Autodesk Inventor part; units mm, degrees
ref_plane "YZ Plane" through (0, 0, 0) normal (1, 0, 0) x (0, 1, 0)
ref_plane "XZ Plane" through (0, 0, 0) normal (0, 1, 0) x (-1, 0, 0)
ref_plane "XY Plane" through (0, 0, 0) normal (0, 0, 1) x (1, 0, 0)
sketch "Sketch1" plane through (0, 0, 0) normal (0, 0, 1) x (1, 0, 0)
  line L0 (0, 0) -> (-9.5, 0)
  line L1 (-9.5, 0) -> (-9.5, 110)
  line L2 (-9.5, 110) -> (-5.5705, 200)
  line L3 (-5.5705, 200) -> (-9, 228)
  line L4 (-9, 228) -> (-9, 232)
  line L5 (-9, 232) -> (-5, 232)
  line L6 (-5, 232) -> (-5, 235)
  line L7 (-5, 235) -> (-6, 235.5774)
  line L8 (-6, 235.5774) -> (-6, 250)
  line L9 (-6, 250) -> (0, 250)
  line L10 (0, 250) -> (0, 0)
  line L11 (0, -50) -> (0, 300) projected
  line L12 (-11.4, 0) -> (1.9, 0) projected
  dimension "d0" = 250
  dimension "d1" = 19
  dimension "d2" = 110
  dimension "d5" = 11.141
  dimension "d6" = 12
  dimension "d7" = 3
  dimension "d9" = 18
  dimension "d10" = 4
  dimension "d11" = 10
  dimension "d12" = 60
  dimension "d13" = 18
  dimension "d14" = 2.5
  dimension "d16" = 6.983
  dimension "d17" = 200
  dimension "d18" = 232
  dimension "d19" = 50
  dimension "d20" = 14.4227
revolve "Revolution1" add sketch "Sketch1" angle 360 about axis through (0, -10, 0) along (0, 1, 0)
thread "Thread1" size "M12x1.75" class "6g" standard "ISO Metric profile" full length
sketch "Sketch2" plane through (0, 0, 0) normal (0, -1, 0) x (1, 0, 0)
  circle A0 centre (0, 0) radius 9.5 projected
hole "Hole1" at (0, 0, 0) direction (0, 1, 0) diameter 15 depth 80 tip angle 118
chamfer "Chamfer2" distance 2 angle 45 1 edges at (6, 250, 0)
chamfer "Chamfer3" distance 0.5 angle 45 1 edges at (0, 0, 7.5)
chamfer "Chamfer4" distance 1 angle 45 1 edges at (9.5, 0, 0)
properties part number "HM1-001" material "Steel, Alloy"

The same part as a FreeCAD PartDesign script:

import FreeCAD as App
import Part
import Sketcher
Q = App.Units.Quantity


def edges_at(feature, points):
    """Names of the edges that pass closest to the given points."""
    edges = feature.Shape.Edges
    near = lambda p: min(range(len(edges)), key=lambda i: edges[i].distToShape(Part.Vertex(*p))[0])
    return sorted({f"Edge{near(p) + 1}" for p in points})

doc = App.newDocument("Part")
params = doc.addObject("Spreadsheet::Sheet", "Params")
for row, (alias, value) in enumerate([
    ("sketch1_width", "4 mm"),
    ("sketch1_height", "250 mm"),
    ("sketch1_height2", "3 mm"),
    ("sketch1_height3", "110 mm"),
    ("sketch1_width2", "6 mm"),
    ("revolution_angle", "360 deg"),
    ("sketch2_diameter", "15 mm"),
    ("hole_diameter", "15 mm"),
    ("hole_depth", "80 mm"),
    ("chamfer_size", "2 mm"),
    ("chamfer2_size", "0.5 mm"),
    ("chamfer3_size", "1 mm"),
], start=1):
    params.set(f"A{row}", alias)
    params.set(f"B{row}", "=" + value)
    params.setAlias(f"B{row}", alias)

body = doc.addObject("PartDesign::Body", "Body")

# Sketch on XY plane
sketch1 = doc.addObject("Sketcher::SketchObject", "Sketch")
body.addObject(sketch1)
sketch1.AttachmentSupport = (doc.XY_Plane, [""])
sketch1.MapMode = "FlatFace"
sketch1.addGeometry(Part.LineSegment(App.Vector(-9.5, 0, 0), App.Vector(0, 0, 0)), False)
sketch1.addGeometry(Part.LineSegment(App.Vector(0, 0, 0), App.Vector(0, 250, 0)), False)
sketch1.addGeometry(Part.LineSegment(App.Vector(0, 250, 0), App.Vector(-6, 250, 0)), False)
sketch1.addGeometry(Part.LineSegment(App.Vector(-6, 250, 0), App.Vector(-6, 235.5774, 0)), False)
sketch1.addGeometry(Part.LineSegment(App.Vector(-6, 235.5774, 0), App.Vector(-5, 235, 0)), False)
sketch1.addGeometry(Part.LineSegment(App.Vector(-5, 235, 0), App.Vector(-5, 232, 0)), False)
sketch1.addGeometry(Part.LineSegment(App.Vector(-5, 232, 0), App.Vector(-9, 232, 0)), False)
sketch1.addGeometry(Part.LineSegment(App.Vector(-9, 232, 0), App.Vector(-9, 228, 0)), False)
sketch1.addGeometry(Part.LineSegment(App.Vector(-9, 228, 0), App.Vector(-5.5705, 200, 0)), False)
sketch1.addGeometry(Part.LineSegment(App.Vector(-5.5705, 200, 0), App.Vector(-9.5, 110, 0)), False)
sketch1.addGeometry(Part.LineSegment(App.Vector(-9.5, 110, 0), App.Vector(-9.5, 0, 0)), False)
sketch1.addConstraint(Sketcher.Constraint("Coincident", 0, 2, 1, 1))
sketch1.addConstraint(Sketcher.Constraint("Coincident", 1, 2, 2, 1))
sketch1.addConstraint(Sketcher.Constraint("Coincident", 2, 2, 3, 1))
sketch1.addConstraint(Sketcher.Constraint("Coincident", 3, 2, 4, 1))
sketch1.addConstraint(Sketcher.Constraint("Coincident", 4, 2, 5, 1))
sketch1.addConstraint(Sketcher.Constraint("Coincident", 5, 2, 6, 1))
sketch1.addConstraint(Sketcher.Constraint("Coincident", 6, 2, 7, 1))
sketch1.addConstraint(Sketcher.Constraint("Coincident", 7, 2, 8, 1))
sketch1.addConstraint(Sketcher.Constraint("Coincident", 8, 2, 9, 1))
sketch1.addConstraint(Sketcher.Constraint("Coincident", 9, 2, 10, 1))
sketch1.addConstraint(Sketcher.Constraint("Coincident", 10, 2, 0, 1))
sketch1.addConstraint(Sketcher.Constraint("Horizontal", 0))
sketch1.addConstraint(Sketcher.Constraint("Vertical", 1))
sketch1.addConstraint(Sketcher.Constraint("Horizontal", 2))
sketch1.addConstraint(Sketcher.Constraint("Vertical", 3))
sketch1.addConstraint(Sketcher.Constraint("Vertical", 5))
sketch1.addConstraint(Sketcher.Constraint("Horizontal", 6))
sketch1.addConstraint(Sketcher.Constraint("Vertical", 7))
sketch1.addConstraint(Sketcher.Constraint("Vertical", 10))
sketch1.addConstraint(Sketcher.Constraint("Coincident", 0, 2, -1, 1))
sketch1.addConstraint(Sketcher.Constraint("Equal", 6, 7))
sketch1.addConstraint(Sketcher.Constraint("DistanceX", 6, 2, 6, 1, 4.0))
sketch1.addConstraint(Sketcher.Constraint("DistanceY", 1, 1, 1, 2, 250.0))
sketch1.addConstraint(Sketcher.Constraint("DistanceY", 5, 2, 5, 1, 3.0))
sketch1.addConstraint(Sketcher.Constraint("DistanceY", 10, 2, 10, 1, 110.0))
sketch1.addConstraint(Sketcher.Constraint("DistanceY", -1, 1, 5, 2, 232.0))
sketch1.addConstraint(Sketcher.Constraint("DistanceY", -1, 1, 8, 2, 200.0))
sketch1.addConstraint(Sketcher.Constraint("DistanceX", 6, 2, 3, 2, 3.0))
sketch1.addConstraint(Sketcher.Constraint("DistanceX", 2, 2, 2, 1, 6.0))
sketch1.addConstraint(Sketcher.Constraint("DistanceX", 0, 1, 0, 2, 9.5))
sketch1.addConstraint(Sketcher.Constraint("DistanceY", 3, 2, 3, 1, 14.4226))
sketch1.addConstraint(Sketcher.Constraint("Angle", 9, Q("-92.5 deg")))
sketch1.setExpression("Constraints[21]", "Params.sketch1_width")
sketch1.setExpression("Constraints[22]", "Params.sketch1_height")
sketch1.setExpression("Constraints[23]", "Params.sketch1_height2")
sketch1.setExpression("Constraints[24]", "Params.sketch1_height3")
sketch1.setExpression("Constraints[28]", "Params.sketch1_width2")
revolution = doc.addObject("PartDesign::Revolution", "Revolution")
body.addObject(revolution)
revolution.Profile = sketch1
revolution.ReferenceAxis = (sketch1, ["V_Axis"])
revolution.setExpression("Angle", "Params.revolution_angle")

# Sketch on XZ plane
sketch2 = doc.addObject("Sketcher::SketchObject", "Sketch001")
body.addObject(sketch2)
sketch2.AttachmentSupport = (doc.XZ_Plane, [""])
sketch2.MapMode = "FlatFace"
sketch2.addGeometry(Part.Circle(App.Vector(0, 0, 0), App.Vector(0, 0, 1), 7.5), False)
sketch2.addConstraint(Sketcher.Constraint("Coincident", 0, 3, -1, 1))
sketch2.addConstraint(Sketcher.Constraint("Diameter", 0, 15.0))
sketch2.setExpression("Constraints[1]", "Params.sketch2_diameter")
doc.recompute()
hole = doc.addObject("PartDesign::Hole", "Hole")
body.addObject(hole)
hole.Profile = sketch2
hole.ThreadType = "None"
hole.setExpression("Diameter", "Params.hole_diameter")
hole.DepthType = "Dimension"
hole.setExpression("Depth", "Params.hole_depth")
hole.DrillPoint = "Angled"
hole.DrillPointAngle = 118
doc.recompute()

chamfer = doc.addObject("PartDesign::Chamfer", "Chamfer")
body.addObject(chamfer)
chamfer.Base = (hole, edges_at(hole, [(6, 250, 0)]))
chamfer.setExpression("Size", "Params.chamfer_size")
doc.recompute()

chamfer2 = doc.addObject("PartDesign::Chamfer", "Chamfer001")
body.addObject(chamfer2)
chamfer2.Base = (chamfer, edges_at(chamfer, [(0, 0, 7.5)]))
chamfer2.setExpression("Size", "Params.chamfer2_size")
doc.recompute()

chamfer3 = doc.addObject("PartDesign::Chamfer", "Chamfer002")
body.addObject(chamfer3)
chamfer3.Base = (chamfer2, edges_at(chamfer2, [(9.5, 0, 0)]))
chamfer3.setExpression("Size", "Params.chamfer3_size")

doc.recompute()
